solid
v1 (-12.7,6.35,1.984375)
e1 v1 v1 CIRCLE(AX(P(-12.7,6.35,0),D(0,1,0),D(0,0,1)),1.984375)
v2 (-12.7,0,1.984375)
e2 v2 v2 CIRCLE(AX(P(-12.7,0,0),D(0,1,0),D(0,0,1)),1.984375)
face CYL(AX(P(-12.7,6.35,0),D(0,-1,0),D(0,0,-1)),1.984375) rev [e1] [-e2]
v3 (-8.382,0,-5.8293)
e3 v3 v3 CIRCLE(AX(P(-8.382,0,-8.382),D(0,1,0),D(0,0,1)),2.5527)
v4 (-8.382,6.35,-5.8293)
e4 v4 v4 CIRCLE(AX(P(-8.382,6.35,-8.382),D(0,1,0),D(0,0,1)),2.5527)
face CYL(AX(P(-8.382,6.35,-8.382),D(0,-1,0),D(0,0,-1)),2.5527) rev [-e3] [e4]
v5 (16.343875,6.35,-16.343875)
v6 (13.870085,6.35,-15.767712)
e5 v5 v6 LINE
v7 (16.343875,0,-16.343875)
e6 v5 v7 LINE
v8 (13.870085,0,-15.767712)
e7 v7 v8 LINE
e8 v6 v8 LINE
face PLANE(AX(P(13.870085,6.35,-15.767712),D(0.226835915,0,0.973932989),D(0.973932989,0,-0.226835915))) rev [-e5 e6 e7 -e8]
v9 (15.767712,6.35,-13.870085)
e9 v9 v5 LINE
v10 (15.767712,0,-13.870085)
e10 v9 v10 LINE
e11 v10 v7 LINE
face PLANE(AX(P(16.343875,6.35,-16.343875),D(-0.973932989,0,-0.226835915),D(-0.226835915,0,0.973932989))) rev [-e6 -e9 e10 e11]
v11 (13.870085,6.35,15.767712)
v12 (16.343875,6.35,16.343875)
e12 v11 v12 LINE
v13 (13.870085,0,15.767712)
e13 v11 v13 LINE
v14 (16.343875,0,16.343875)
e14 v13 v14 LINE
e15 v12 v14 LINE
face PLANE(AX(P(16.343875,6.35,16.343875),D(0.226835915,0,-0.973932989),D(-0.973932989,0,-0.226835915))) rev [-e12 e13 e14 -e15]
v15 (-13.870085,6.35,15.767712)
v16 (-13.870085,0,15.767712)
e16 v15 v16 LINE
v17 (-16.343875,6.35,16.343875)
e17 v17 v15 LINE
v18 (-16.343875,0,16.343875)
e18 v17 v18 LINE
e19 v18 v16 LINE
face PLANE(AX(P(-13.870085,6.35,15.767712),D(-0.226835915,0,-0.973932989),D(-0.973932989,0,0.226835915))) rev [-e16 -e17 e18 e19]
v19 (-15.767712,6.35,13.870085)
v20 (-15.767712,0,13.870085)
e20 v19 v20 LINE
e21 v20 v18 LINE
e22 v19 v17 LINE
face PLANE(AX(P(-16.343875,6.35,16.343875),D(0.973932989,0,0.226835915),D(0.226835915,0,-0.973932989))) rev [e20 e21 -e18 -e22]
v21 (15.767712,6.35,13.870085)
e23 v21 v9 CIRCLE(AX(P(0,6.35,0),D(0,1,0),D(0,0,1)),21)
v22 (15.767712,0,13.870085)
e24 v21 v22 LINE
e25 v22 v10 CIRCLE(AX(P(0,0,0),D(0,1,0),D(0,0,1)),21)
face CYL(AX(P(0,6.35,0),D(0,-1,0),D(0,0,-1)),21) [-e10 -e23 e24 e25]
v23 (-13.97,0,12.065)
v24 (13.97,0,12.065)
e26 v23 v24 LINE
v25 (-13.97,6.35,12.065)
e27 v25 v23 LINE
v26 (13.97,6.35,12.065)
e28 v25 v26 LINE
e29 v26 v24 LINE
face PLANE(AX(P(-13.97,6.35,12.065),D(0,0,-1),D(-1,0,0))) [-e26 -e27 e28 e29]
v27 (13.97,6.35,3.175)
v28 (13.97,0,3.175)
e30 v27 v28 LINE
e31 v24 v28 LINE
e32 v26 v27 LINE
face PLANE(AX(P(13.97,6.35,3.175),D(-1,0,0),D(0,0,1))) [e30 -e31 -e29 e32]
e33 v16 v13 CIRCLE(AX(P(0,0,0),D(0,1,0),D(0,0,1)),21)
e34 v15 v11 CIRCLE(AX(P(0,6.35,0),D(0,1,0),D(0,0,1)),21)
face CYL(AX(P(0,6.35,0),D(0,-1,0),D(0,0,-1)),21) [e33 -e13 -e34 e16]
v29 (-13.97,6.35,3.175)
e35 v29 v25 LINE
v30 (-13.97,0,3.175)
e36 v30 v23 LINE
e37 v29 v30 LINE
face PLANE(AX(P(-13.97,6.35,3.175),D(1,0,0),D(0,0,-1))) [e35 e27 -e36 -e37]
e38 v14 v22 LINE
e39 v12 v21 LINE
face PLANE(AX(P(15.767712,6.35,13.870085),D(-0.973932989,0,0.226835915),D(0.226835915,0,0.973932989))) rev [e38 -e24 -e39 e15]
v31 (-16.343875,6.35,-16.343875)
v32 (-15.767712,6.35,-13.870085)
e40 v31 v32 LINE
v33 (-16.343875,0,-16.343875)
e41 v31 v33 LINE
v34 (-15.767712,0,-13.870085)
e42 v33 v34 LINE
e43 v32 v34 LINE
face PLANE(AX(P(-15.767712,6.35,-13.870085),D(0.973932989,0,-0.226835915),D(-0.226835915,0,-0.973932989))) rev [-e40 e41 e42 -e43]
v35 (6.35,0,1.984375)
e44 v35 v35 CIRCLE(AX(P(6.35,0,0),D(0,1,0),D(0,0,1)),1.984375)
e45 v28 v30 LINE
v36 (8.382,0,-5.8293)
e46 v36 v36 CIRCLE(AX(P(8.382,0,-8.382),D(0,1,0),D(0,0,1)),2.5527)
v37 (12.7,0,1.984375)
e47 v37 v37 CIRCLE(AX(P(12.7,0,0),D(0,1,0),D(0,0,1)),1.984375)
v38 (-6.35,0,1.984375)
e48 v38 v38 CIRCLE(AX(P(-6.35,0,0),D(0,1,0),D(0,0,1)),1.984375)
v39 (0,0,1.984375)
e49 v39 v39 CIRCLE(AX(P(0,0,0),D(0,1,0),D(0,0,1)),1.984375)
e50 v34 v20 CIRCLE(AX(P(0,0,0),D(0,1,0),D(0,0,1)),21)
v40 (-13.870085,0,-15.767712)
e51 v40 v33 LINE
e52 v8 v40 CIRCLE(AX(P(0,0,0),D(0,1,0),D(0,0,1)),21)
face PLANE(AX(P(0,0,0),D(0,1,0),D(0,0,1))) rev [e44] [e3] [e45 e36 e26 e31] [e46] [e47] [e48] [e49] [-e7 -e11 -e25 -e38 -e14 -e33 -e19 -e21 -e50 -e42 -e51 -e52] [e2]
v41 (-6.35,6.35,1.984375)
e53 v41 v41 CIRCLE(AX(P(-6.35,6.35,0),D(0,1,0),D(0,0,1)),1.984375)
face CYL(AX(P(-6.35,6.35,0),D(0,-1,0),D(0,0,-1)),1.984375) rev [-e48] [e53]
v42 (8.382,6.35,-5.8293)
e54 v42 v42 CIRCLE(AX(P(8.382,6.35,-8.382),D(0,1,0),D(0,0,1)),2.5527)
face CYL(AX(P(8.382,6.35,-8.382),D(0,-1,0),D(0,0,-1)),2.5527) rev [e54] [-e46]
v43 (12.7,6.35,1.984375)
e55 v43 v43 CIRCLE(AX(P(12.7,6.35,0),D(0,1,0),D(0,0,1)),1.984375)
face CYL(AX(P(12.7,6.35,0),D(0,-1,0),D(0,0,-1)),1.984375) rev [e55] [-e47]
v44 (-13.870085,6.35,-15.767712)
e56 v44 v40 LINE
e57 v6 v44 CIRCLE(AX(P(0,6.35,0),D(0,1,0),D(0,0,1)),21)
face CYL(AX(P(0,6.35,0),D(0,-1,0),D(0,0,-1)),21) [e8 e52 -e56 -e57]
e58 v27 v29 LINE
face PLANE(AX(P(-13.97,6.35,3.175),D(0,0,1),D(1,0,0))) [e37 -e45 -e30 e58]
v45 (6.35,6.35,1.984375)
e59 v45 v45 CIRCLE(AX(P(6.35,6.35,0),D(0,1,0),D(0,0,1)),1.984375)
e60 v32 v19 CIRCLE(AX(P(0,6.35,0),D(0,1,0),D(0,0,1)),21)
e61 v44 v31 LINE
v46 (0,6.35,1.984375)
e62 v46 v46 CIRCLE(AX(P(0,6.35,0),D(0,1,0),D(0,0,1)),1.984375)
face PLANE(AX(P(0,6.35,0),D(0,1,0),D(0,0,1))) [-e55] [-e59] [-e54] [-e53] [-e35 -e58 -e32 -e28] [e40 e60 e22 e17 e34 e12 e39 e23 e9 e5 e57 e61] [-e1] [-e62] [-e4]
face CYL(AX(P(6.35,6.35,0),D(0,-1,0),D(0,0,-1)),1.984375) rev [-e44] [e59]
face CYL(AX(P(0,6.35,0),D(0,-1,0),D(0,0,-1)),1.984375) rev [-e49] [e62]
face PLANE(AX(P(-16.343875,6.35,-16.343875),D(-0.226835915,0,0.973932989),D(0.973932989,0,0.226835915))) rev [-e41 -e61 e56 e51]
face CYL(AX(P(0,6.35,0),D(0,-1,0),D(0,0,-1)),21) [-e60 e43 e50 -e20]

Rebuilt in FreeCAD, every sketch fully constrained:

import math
import FreeCAD as App
import Part
import Sketcher
from FreeCAD import Vector
Q = App.Units.Quantity

doc = App.newDocument("Part")
body = doc.addObject("PartDesign::Body", "Body")

# Sketch on XZ plane
sketch1 = body.newObject("Sketcher::SketchObject", "Sketch")
sketch1.AttachmentSupport = (doc.getObject("XZ_Plane"), [""])
sketch1.MapMode = "FlatFace"
sketch1.addGeometry(Part.LineSegment(Vector(16.3, -16.3, 0), Vector(13.9, -15.8, 0)), False)
sketch1.addGeometry(Part.ArcOfCircle(Part.Circle(Vector(0, 0, 0), Vector(0, 0, 1), 21), math.radians(-131), math.radians(-49)), False)
sketch1.addGeometry(Part.LineSegment(Vector(-13.9, -15.8, 0), Vector(-16.3, -16.3, 0)), False)
sketch1.addGeometry(Part.LineSegment(Vector(-16.3, -16.3, 0), Vector(-15.8, -13.9, 0)), False)
sketch1.addGeometry(Part.ArcOfCircle(Part.Circle(Vector(0, 0, 0), Vector(0, 0, 1), 21), math.radians(139), math.radians(221)), False)
sketch1.addGeometry(Part.LineSegment(Vector(-15.8, 13.9, 0), Vector(-16.3, 16.3, 0)), False)
sketch1.addGeometry(Part.LineSegment(Vector(-16.3, 16.3, 0), Vector(-13.9, 15.8, 0)), False)
sketch1.addGeometry(Part.ArcOfCircle(Part.Circle(Vector(0, 0, 0), Vector(0, 0, 1), 21), math.radians(49), math.radians(131)), False)
sketch1.addGeometry(Part.LineSegment(Vector(13.9, 15.8, 0), Vector(16.3, 16.3, 0)), False)
sketch1.addGeometry(Part.LineSegment(Vector(16.3, 16.3, 0), Vector(15.8, 13.9, 0)), False)
sketch1.addGeometry(Part.ArcOfCircle(Part.Circle(Vector(0, 0, 0), Vector(0, 0, 1), 21), math.radians(-41), math.radians(41)), False)
sketch1.addGeometry(Part.LineSegment(Vector(15.8, -13.9, 0), Vector(16.3, -16.3, 0)), False)
sketch1.addGeometry(Part.LineSegment(Vector(-14, 12.1, 0), Vector(-14, 3.2, 0)), False)
sketch1.addGeometry(Part.LineSegment(Vector(-14, 3.2, 0), Vector(14, 3.2, 0)), False)
sketch1.addGeometry(Part.LineSegment(Vector(14, 3.2, 0), Vector(14, 12.1, 0)), False)
sketch1.addGeometry(Part.LineSegment(Vector(14, 12.1, 0), Vector(-14, 12.1, 0)), False)
sketch1.addGeometry(Part.Circle(Vector(12.7, 0, 0), Vector(0, 0, 1), 2), False)
sketch1.addGeometry(Part.Circle(Vector(6.3, 0, 0), Vector(0, 0, 1), 2), False)
sketch1.addGeometry(Part.Circle(Vector(8.4, -8.4, 0), Vector(0, 0, 1), 2.6), False)
sketch1.addGeometry(Part.Circle(Vector(0, 0, 0), Vector(0, 0, 1), 2), False)
sketch1.addGeometry(Part.Circle(Vector(-6.3, 0, 0), Vector(0, 0, 1), 2), False)
sketch1.addGeometry(Part.Circle(Vector(-12.7, 0, 0), Vector(0, 0, 1), 2), False)
sketch1.addGeometry(Part.Circle(Vector(-8.4, -8.4, 0), Vector(0, 0, 1), 2.6), False)
sketch1.addConstraint(Sketcher.Constraint("Coincident", 0, 2, 1, 2))
sketch1.addConstraint(Sketcher.Constraint("Coincident", 1, 1, 2, 1))
sketch1.addConstraint(Sketcher.Constraint("Coincident", 2, 2, 3, 1))
sketch1.addConstraint(Sketcher.Constraint("Coincident", 3, 2, 4, 2))
sketch1.addConstraint(Sketcher.Constraint("Coincident", 4, 1, 5, 1))
sketch1.addConstraint(Sketcher.Constraint("Coincident", 5, 2, 6, 1))
sketch1.addConstraint(Sketcher.Constraint("Coincident", 6, 2, 7, 2))
sketch1.addConstraint(Sketcher.Constraint("Coincident", 7, 1, 8, 1))
sketch1.addConstraint(Sketcher.Constraint("Coincident", 8, 2, 9, 1))
sketch1.addConstraint(Sketcher.Constraint("Coincident", 9, 2, 10, 2))
sketch1.addConstraint(Sketcher.Constraint("Coincident", 10, 1, 11, 1))
sketch1.addConstraint(Sketcher.Constraint("Coincident", 11, 2, 0, 1))
sketch1.addConstraint(Sketcher.Constraint("Coincident", 12, 2, 13, 1))
sketch1.addConstraint(Sketcher.Constraint("Coincident", 13, 2, 14, 1))
sketch1.addConstraint(Sketcher.Constraint("Coincident", 14, 2, 15, 1))
sketch1.addConstraint(Sketcher.Constraint("Coincident", 15, 2, 12, 1))
sketch1.addConstraint(Sketcher.Constraint("Vertical", 12))
sketch1.addConstraint(Sketcher.Constraint("Horizontal", 13))
sketch1.addConstraint(Sketcher.Constraint("Vertical", 14))
sketch1.addConstraint(Sketcher.Constraint("Horizontal", 15))
sketch1.addConstraint(Sketcher.Constraint("Coincident", 1, 3, -1, 1))
sketch1.addConstraint(Sketcher.Constraint("Coincident", 4, 3, -1, 1))
sketch1.addConstraint(Sketcher.Constraint("Coincident", 7, 3, -1, 1))
sketch1.addConstraint(Sketcher.Constraint("Coincident", 10, 3, -1, 1))
sketch1.addConstraint(Sketcher.Constraint("Coincident", 19, 3, -1, 1))
sketch1.addConstraint(Sketcher.Constraint("Equal", 1, 4))
sketch1.addConstraint(Sketcher.Constraint("Equal", 4, 7))
sketch1.addConstraint(Sketcher.Constraint("Equal", 7, 10))
sketch1.addConstraint(Sketcher.Constraint("Equal", 16, 17))
sketch1.addConstraint(Sketcher.Constraint("Equal", 17, 19))
sketch1.addConstraint(Sketcher.Constraint("Equal", 19, 20))
sketch1.addConstraint(Sketcher.Constraint("Equal", 20, 21))
sketch1.addConstraint(Sketcher.Constraint("Equal", 18, 22))
sketch1.addConstraint(Sketcher.Constraint("Symmetric", 17, 3, 20, 3, -1, 1))
sketch1.addConstraint(Sketcher.Constraint("Symmetric", 16, 3, 21, 3, -1, 1))
sketch1.addConstraint(Sketcher.Constraint("Symmetric", 2, 2, 8, 2, -1, 1))
sketch1.addConstraint(Sketcher.Constraint("Symmetric", 5, 2, 11, 2, -1, 1))
sketch1.addConstraint(Sketcher.Constraint("Symmetric", 18, 3, 22, 3, -2))
sketch1.addConstraint(Sketcher.Constraint("Symmetric", 5, 2, 8, 2, -2))
sketch1.addConstraint(Sketcher.Constraint("PointOnObject", 16, 3, -1))
sketch1.addConstraint(Sketcher.Constraint("PointOnObject", 17, 3, -1))
sketch1.addConstraint(Sketcher.Constraint("Perpendicular", 0, 3))
sketch1.addConstraint(Sketcher.Constraint("Perpendicular", 2, 5))
sketch1.addConstraint(Sketcher.Constraint("Perpendicular", 3, 6))
sketch1.addConstraint(Sketcher.Constraint("Perpendicular", 5, 8))
sketch1.addConstraint(Sketcher.Constraint("Perpendicular", 6, 9))
sketch1.addConstraint(Sketcher.Constraint("Perpendicular", 8, 11))
sketch1.addConstraint(Sketcher.Constraint("Horizontal", 0, 2, 1, 1))
sketch1.addConstraint(Sketcher.Constraint("Equal", 2, 3))
sketch1.addConstraint(Sketcher.Constraint("Diameter", 16, Q("0.15625 in")))
sketch1.addConstraint(Sketcher.Constraint("Diameter", 18, Q("0.201 in")))
sketch1.addConstraint(Sketcher.Constraint("DistanceX", 13, 1, 13, 2, Q("1.1 in")))
sketch1.addConstraint(Sketcher.Constraint("Distance", 0, Q("0.1 in")))
sketch1.addConstraint(Sketcher.Constraint("DistanceY", 12, 2, 12, 1, Q("0.35 in")))
sketch1.addConstraint(Sketcher.Constraint("DistanceX", -1, 1, 16, 3, Q("0.5 in")))
sketch1.addConstraint(Sketcher.Constraint("DistanceX", 12, 2, 20, 3, Q("0.3 in")))
sketch1.addConstraint(Sketcher.Constraint("DistanceX", 17, 3, 13, 2, Q("0.3 in")))
sketch1.addConstraint(Sketcher.Constraint("DistanceX", -1, 1, 18, 3, Q("0.33 in")))
sketch1.addConstraint(Sketcher.Constraint("DistanceY", 18, 3, -1, 1, Q("0.33 in")))
sketch1.addConstraint(Sketcher.Constraint("Radius", 1, 21.0))
sketch1.addConstraint(Sketcher.Constraint("DistanceY", -1, 1, 12, 2, Q("0.125 in")))
sketch1.addConstraint(Sketcher.Constraint("DistanceY", 0, 2, -1, 1, 15.767712))
pad1 = body.newObject("PartDesign::Pad", "Pad")
pad1.Profile = sketch1
pad1.Length = Q("0.25 in")
pad1.Reversed = True

doc.recompute()
